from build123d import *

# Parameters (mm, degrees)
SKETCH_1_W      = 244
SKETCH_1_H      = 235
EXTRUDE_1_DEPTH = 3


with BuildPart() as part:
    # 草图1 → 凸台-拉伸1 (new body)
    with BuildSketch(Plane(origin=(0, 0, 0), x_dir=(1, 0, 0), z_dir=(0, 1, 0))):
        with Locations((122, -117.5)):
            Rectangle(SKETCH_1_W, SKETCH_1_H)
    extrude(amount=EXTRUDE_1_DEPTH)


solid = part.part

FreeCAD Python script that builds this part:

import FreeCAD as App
import Part
import Sketcher

V = App.Vector
Q = App.Units.Quantity

doc = App.newDocument("Part")
body = doc.addObject("PartDesign::Body", "Body")

# Sketch on XZ plane
sketch1 = body.newObject("Sketcher::SketchObject", "Sketch")
sketch1.AttachmentSupport = (doc.getObject("XZ_Plane"), [""])
sketch1.MapMode = "FlatFace"
sketch1.addGeometry([
    Part.LineSegment(V(0, 0, 0), V(0, 235, 0)),
    Part.LineSegment(V(0, 235, 0), V(244, 235, 0)),
    Part.LineSegment(V(244, 235, 0), V(244, 0, 0)),
    Part.LineSegment(V(244, 0, 0), V(0, 0, 0)),
], False)
sketch1.addConstraint([
    Sketcher.Constraint("Coincident", 0, 2, 1, 1),
    Sketcher.Constraint("Coincident", 1, 2, 2, 1),
    Sketcher.Constraint("Coincident", 2, 2, 3, 1),
    Sketcher.Constraint("Coincident", 3, 2, 0, 1),
    Sketcher.Constraint("Vertical", 0),
    Sketcher.Constraint("Horizontal", 1),
    Sketcher.Constraint("Vertical", 2),
    Sketcher.Constraint("Horizontal", 3),
    Sketcher.Constraint("Coincident", 3, 2, -1, 1),
    Sketcher.Constraint("DistanceX", 1, 1, 1, 2, Q("244 mm")),
    Sketcher.Constraint("DistanceY", 0, 1, 0, 2, Q("235 mm")),
])
pad1 = body.newObject("PartDesign::Pad", "Pad")
pad1.Profile = sketch1
pad1.Length = 3
pad1.Reversed = True

doc.recompute()
